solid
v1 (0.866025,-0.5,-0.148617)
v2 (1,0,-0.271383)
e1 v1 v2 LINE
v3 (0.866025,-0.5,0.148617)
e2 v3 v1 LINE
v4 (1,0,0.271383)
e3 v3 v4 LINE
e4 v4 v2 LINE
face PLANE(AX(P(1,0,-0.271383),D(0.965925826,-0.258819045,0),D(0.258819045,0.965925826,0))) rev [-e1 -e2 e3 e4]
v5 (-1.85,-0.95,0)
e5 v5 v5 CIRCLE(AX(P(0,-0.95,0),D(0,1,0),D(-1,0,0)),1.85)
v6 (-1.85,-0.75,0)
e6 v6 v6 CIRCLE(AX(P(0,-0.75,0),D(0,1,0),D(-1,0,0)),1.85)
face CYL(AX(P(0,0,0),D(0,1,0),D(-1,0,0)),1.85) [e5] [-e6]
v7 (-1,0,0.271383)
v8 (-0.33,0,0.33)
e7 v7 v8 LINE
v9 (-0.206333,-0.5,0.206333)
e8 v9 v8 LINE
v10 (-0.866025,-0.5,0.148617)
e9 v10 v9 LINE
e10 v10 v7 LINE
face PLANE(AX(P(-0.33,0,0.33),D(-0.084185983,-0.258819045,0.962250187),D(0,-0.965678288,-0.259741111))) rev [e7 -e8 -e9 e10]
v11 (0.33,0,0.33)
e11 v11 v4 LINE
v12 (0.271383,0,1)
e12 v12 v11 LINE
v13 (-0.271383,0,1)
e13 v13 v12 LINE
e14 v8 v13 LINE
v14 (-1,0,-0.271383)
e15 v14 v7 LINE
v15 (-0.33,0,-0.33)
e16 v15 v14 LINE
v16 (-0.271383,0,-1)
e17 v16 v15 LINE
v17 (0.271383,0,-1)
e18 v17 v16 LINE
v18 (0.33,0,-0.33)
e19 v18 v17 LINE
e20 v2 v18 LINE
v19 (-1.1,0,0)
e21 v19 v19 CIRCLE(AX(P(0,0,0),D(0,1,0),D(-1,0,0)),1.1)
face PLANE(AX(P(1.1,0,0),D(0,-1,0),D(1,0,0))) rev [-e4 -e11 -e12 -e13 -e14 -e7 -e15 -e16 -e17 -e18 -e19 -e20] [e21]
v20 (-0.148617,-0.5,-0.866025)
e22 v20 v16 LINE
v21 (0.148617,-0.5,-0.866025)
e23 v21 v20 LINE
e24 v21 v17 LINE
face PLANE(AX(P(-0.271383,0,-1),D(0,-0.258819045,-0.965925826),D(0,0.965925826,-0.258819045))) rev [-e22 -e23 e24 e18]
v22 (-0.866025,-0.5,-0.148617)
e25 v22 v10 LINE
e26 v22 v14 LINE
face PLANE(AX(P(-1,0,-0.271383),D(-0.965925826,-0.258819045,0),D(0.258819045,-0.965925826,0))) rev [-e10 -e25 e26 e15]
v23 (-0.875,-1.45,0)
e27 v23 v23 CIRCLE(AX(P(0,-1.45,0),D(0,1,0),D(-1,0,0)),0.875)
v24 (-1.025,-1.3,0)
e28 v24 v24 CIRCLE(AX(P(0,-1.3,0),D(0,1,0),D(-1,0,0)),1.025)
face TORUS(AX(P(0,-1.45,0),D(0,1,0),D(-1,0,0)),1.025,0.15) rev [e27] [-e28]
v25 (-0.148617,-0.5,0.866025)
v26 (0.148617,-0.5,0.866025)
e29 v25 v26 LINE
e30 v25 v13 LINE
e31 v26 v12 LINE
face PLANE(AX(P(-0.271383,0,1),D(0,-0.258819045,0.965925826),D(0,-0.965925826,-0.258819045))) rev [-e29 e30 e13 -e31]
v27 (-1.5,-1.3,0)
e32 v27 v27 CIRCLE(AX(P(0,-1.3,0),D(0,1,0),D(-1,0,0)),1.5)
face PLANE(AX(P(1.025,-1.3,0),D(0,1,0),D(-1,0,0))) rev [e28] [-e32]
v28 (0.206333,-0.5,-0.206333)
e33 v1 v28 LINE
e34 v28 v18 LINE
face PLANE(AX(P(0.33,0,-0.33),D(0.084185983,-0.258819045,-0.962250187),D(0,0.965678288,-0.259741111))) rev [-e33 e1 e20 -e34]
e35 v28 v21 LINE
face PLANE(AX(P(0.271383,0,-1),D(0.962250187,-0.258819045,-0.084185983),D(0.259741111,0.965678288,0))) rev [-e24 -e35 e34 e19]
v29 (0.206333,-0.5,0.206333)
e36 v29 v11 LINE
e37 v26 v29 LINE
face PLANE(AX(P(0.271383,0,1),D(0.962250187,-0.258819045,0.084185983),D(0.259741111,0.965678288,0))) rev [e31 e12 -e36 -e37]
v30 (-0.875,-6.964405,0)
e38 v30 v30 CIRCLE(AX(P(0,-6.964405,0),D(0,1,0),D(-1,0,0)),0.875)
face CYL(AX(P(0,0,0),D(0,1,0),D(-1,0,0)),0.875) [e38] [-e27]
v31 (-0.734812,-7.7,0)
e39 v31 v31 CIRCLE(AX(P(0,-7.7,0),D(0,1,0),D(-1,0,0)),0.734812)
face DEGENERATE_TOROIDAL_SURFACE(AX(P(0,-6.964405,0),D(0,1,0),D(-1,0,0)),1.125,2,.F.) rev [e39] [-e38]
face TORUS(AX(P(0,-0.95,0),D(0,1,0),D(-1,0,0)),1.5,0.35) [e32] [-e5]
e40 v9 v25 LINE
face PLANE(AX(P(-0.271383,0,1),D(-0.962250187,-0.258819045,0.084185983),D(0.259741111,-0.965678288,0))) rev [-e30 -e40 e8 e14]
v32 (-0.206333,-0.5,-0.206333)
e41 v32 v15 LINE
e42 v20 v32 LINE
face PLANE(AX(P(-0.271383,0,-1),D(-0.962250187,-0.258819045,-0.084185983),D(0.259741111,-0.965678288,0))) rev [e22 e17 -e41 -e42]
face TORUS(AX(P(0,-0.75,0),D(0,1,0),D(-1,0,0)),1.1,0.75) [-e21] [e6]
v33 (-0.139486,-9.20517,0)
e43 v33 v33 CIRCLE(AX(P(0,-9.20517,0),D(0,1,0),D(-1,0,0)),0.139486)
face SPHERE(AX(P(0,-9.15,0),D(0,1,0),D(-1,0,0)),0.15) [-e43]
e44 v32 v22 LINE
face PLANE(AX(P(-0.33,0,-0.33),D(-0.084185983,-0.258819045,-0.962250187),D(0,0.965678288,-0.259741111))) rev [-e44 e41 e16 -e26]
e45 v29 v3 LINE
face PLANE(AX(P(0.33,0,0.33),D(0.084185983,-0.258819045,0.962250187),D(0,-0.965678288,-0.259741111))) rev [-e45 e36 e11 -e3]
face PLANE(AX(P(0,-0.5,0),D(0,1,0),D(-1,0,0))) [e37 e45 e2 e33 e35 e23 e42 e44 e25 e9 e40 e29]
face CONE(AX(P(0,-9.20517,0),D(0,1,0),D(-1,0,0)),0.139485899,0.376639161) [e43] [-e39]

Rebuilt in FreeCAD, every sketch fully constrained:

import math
import FreeCAD as App
import Part
import Sketcher

V = App.Vector
Q = App.Units.Quantity


def add_polygon(sketch, points):
    """Adds a closed chain of lines whose ends are joined by coincident constraints."""
    first, n = sketch.GeometryCount, len(points)
    for a, b in zip(points, points[1:] + points[:1]):
        sketch.addGeometry(Part.LineSegment(App.Vector(*a, 0), App.Vector(*b, 0)), False)
    for i in range(n):
        sketch.addConstraint(Sketcher.Constraint("Coincident", first + i, 2, first + (i + 1) % n, 1))

doc = App.newDocument("Part")
body = doc.addObject("PartDesign::Body", "Body")

# Sketch on XY plane
sketch1 = body.newObject("Sketcher::SketchObject", "Sketch")
sketch1.AttachmentSupport = (doc.getObject("XY_Plane"), [""])
sketch1.MapMode = "FlatFace"
sketch1.addGeometry([
    Part.LineSegment(V(0.88, -6.96, 0), V(0.88, -1.45, 0)),  # 0
    Part.ArcOfCircle(Part.Circle(V(1.03, -1.45, 0), V(0, 0, 1), 0.15), math.radians(90), math.radians(180)),  # 1
    Part.LineSegment(V(1.02, -1.3, 0), V(1.5, -1.3, 0)),  # 2
    Part.ArcOfCircle(Part.Circle(V(1.5, -0.95, 0), V(0, 0, 1), 0.35), math.radians(-90), math.radians(0)),  # 3
    Part.LineSegment(V(1.85, -0.95, 0), V(1.85, -0.75, 0)),  # 4
    Part.ArcOfCircle(Part.Circle(V(1.1, -0.75, 0), V(0, 0, 1), 0.75), math.radians(0), math.radians(90)),  # 5
    Part.LineSegment(V(1.1, 0, 0), V(0, 0, 0)),  # 6
    Part.LineSegment(V(0, 0, 0), V(0, -9.3, 0)),  # 7
    Part.ArcOfCircle(Part.Circle(V(0, -9.15, 0), V(0, 0, 1), 0.15), math.radians(-90), math.radians(-22)),  # 8
    Part.LineSegment(V(0.14, -9.21, 0), V(0.73, -7.7, 0)),  # 9
    Part.ArcOfCircle(Part.Circle(V(-1.13, -6.96, 0), V(0, 0, 1), 2), math.radians(-22), math.radians(0)),  # 10
], False)
sketch1.addConstraint([
    Sketcher.Constraint("Tangent", 0, 2, 1, 2),
    Sketcher.Constraint("Tangent", 1, 1, 2, 1),
    Sketcher.Constraint("Tangent", 2, 2, 3, 1),
    Sketcher.Constraint("Tangent", 3, 2, 4, 1),
    Sketcher.Constraint("Tangent", 4, 2, 5, 1),
    Sketcher.Constraint("Tangent", 5, 2, 6, 1),
    Sketcher.Constraint("Coincident", 6, 2, 7, 1),
    Sketcher.Constraint("Coincident", 7, 2, 8, 1),
    Sketcher.Constraint("Tangent", 8, 2, 9, 1),
    Sketcher.Constraint("Tangent", 9, 2, 10, 1),
    Sketcher.Constraint("Tangent", 10, 2, 0, 1),
    Sketcher.Constraint("Vertical", 0),
    Sketcher.Constraint("Horizontal", 2),
    Sketcher.Constraint("Vertical", 4),
    Sketcher.Constraint("Horizontal", 6),
    Sketcher.Constraint("Vertical", 7),
    Sketcher.Constraint("Coincident", 6, 2, -1, 1),
    Sketcher.Constraint("Equal", 1, 8),
    Sketcher.Constraint("PointOnObject", 8, 3, -2),
    Sketcher.Constraint("Radius", 10, Q("2 mm")),
    Sketcher.Constraint("Radius", 1, Q("0.15 mm")),
    Sketcher.Constraint("Radius", 3, Q("0.35 mm")),
    Sketcher.Constraint("Radius", 5, Q("0.75 mm")),
    Sketcher.Constraint("DistanceX", 6, 2, 6, 1, Q("1.1 mm")),
    Sketcher.Constraint("DistanceY", 4, 1, 4, 2, Q("0.2 mm")),
    Sketcher.Constraint("DistanceY", 7, 2, 7, 1, Q("9.3 mm")),
    Sketcher.Constraint("DistanceY", 9, 2, -1, 1, Q("7.7 mm")),
    Sketcher.Constraint("DistanceX", 2, 1, 2, 2, Q("0.475 mm")),
])
revolution = body.newObject("PartDesign::Revolution", "Revolution")
revolution.Profile = sketch1
revolution.ReferenceAxis = (sketch1, ["V_Axis"])
revolution.Angle = 360

# Sketch on XZ plane
sketch2 = body.newObject("Sketcher::SketchObject", "Sketch001")
sketch2.AttachmentSupport = (doc.getObject("XZ_Plane"), [""])
sketch2.MapMode = "FlatFace"
add_polygon(sketch2, [(-0.3, -1), (-0.3, -0.3), (-1, -0.3), (-1, 0.3), (-0.3, 0.3), (-0.3, 1), (0.3, 1), (0.3, 0.3), (1, 0.3), (1, -0.3), (0.3, -0.3), (0.3, -1)])  # lines 0-11
sketch2.addConstraint([
    Sketcher.Constraint("Vertical", 2),
    Sketcher.Constraint("Horizontal", 5),
    Sketcher.Constraint("Vertical", 8),
    Sketcher.Constraint("Horizontal", 11),
    Sketcher.Constraint("Symmetric", 0, 2, 6, 2, -1, 1),
    Sketcher.Constraint("Symmetric", 1, 2, 7, 2, -1, 1),
    Sketcher.Constraint("Symmetric", 3, 2, 9, 2, -1, 1),
    Sketcher.Constraint("Symmetric", 4, 2, 10, 2, -1, 1),
    Sketcher.Constraint("Symmetric", 3, 2, 6, 2, -2),
    Sketcher.Constraint("Perpendicular", 0, 3),
    Sketcher.Constraint("Perpendicular", 1, 4),
    Sketcher.Constraint("Perpendicular", 3, 6),
    Sketcher.Constraint("Perpendicular", 6, 9),
    Sketcher.Constraint("Horizontal", 2, 2, 7, 2),
    Sketcher.Constraint("Equal", 11, 2),
    Sketcher.Constraint("Equal", 0, 1),
    Sketcher.Constraint("Angle", 0, Q("95 deg")),
    Sketcher.Constraint("DistanceX", 1, 2, -1, 1, Q("1 mm")),
    Sketcher.Constraint("DistanceX", 0, 2, -1, 1, Q("0.33 mm")),
])
pocket1 = body.newObject("PartDesign::Pocket", "Pocket")
pocket1.Profile = sketch2
pocket1.Length = 0.5
pocket1.Reversed = True
pocket1.TaperAngle = -15

doc.recompute()
